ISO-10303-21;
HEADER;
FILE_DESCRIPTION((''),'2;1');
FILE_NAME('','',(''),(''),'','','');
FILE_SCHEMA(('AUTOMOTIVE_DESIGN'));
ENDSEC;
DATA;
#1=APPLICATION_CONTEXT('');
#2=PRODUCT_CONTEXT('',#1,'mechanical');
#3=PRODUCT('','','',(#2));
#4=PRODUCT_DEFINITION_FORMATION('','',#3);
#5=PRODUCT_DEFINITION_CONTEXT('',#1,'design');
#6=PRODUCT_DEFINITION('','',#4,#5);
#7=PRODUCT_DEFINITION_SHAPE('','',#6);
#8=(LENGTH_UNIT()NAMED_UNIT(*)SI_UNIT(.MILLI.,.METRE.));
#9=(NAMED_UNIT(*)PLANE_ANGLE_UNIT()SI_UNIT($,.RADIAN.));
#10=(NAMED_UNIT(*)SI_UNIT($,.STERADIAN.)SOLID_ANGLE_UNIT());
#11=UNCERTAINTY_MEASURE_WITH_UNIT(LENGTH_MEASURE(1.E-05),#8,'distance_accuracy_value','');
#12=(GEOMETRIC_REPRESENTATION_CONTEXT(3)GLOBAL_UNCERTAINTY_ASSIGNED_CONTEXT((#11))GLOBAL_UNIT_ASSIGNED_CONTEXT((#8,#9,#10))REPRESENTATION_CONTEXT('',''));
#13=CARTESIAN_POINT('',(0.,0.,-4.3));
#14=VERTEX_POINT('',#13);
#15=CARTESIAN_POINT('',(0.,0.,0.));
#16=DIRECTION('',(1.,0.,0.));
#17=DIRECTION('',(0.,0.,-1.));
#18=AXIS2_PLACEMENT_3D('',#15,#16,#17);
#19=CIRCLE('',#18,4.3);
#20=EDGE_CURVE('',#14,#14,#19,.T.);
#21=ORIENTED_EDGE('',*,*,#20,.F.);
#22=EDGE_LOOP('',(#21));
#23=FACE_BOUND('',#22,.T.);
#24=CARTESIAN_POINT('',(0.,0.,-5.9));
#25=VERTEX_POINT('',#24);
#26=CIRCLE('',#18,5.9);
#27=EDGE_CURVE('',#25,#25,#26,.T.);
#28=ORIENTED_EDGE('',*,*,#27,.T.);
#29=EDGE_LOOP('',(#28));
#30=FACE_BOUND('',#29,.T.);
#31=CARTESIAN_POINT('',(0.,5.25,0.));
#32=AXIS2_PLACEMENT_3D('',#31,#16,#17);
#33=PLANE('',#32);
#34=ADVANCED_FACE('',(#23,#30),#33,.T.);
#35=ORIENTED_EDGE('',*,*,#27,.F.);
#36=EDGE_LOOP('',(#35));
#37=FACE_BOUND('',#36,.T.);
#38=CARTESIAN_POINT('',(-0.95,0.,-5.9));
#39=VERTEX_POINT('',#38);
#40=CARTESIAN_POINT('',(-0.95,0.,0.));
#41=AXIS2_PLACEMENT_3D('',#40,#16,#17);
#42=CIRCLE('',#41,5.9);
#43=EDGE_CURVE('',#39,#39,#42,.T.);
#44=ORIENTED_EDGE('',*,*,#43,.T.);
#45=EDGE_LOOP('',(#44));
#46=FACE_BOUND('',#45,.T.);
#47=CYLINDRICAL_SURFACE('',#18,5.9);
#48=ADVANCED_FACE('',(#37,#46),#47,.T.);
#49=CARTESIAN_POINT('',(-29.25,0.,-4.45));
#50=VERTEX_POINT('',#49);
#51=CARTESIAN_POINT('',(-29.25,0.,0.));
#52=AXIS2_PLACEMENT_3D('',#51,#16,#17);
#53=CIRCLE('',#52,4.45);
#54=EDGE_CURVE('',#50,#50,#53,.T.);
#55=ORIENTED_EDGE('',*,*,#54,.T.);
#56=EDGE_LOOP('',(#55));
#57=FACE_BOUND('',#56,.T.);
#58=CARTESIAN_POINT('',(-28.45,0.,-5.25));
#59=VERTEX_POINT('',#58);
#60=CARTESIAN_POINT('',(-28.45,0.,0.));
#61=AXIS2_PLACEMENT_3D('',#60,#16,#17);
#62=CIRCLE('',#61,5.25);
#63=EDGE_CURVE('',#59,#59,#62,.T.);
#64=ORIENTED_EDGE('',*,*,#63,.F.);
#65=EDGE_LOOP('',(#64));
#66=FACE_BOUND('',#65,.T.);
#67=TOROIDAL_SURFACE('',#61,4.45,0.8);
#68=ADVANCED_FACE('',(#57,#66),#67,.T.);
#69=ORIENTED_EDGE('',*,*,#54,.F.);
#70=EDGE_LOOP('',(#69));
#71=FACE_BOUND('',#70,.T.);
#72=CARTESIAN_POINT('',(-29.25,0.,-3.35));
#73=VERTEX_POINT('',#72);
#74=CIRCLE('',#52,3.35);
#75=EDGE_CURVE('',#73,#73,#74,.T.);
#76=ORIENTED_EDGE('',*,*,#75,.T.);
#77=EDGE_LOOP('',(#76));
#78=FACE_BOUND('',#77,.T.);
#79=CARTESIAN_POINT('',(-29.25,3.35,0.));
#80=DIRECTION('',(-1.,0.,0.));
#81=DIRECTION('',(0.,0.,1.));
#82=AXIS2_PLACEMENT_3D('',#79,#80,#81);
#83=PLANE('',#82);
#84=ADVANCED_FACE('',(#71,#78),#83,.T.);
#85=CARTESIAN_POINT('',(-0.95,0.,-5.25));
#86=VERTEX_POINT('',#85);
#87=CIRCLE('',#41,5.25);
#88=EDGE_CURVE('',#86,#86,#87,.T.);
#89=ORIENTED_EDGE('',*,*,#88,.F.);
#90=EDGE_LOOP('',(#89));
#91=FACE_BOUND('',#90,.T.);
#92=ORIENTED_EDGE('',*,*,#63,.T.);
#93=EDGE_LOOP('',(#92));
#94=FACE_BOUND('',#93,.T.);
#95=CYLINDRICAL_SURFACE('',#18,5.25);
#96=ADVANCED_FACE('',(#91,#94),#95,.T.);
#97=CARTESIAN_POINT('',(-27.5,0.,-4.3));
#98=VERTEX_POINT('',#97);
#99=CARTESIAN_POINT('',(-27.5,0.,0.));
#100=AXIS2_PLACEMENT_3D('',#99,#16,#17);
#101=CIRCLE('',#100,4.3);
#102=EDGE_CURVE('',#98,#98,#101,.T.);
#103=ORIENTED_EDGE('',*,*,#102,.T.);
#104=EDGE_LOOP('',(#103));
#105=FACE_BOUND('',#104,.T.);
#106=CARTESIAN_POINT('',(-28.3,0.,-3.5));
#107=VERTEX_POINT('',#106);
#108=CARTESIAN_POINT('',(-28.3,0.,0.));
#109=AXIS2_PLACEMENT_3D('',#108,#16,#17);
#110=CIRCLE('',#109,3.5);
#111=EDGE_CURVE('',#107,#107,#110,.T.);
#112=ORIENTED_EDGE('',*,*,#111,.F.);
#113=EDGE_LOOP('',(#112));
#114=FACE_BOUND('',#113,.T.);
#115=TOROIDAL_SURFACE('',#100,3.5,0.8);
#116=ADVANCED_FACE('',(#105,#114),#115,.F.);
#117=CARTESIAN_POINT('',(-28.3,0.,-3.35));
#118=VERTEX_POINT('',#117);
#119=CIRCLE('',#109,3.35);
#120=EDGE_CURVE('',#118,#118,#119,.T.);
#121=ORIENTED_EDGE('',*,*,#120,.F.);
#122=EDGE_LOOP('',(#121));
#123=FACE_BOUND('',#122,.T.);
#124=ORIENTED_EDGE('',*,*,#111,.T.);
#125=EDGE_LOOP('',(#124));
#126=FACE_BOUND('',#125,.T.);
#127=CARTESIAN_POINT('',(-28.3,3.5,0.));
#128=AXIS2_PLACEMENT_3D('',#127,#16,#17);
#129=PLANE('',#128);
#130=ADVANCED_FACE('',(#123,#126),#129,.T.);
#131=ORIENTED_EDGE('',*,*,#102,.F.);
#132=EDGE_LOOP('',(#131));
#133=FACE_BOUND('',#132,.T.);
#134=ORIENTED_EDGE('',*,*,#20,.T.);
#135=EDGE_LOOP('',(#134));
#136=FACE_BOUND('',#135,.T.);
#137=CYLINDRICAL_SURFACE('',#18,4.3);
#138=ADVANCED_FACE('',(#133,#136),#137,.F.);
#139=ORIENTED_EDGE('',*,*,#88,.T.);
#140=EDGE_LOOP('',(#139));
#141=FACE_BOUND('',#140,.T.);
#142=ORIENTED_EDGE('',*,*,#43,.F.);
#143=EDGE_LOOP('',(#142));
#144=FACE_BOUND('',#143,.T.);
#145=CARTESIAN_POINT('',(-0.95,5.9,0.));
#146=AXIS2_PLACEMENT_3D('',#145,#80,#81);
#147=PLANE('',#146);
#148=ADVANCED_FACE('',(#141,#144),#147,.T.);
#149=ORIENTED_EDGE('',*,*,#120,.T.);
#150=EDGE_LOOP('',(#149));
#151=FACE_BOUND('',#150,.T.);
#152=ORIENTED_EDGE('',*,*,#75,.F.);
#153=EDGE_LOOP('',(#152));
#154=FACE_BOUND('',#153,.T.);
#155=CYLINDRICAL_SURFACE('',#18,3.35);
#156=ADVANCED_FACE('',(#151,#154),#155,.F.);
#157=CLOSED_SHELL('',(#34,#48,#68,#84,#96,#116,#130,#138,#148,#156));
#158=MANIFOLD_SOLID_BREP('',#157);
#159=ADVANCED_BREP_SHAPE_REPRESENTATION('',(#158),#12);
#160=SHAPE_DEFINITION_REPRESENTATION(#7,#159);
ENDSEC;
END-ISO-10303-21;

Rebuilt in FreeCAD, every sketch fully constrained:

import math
import FreeCAD as App
import Part
import Sketcher

V = App.Vector

doc = App.newDocument("Part")
params = doc.addObject("Spreadsheet::Sheet", "Params")
for row, (alias, value) in enumerate([
    ("sketch1_radius", "0.8 mm"),
    ("sketch1_width", "27.5 mm"),
    ("sketch1_height", "1.6 mm"),
    ("sketch1_height2", "1.1 mm"),
    ("sketch1_width2", "0.95 mm"),
    ("revolution_angle", "360 deg"),
], start=1):
    params.set(f"A{row}", alias)
    params.set(f"B{row}", "=" + value)
    params.setAlias(f"B{row}", alias)

body = doc.addObject("PartDesign::Body", "Body")

# Sketch on XY plane
sketch1 = doc.addObject("Sketcher::SketchObject", "Sketch")
body.addObject(sketch1)
sketch1.AttachmentSupport = (doc.XY_Plane, [""])
sketch1.MapMode = "FlatFace"
sketch1.addGeometry(Part.LineSegment(V(-27.5, 4.3, 0), V(0, 4.3, 0)), False)
sketch1.addGeometry(Part.LineSegment(V(0, 4.3, 0), V(0, 5.9, 0)), False)
sketch1.addGeometry(Part.LineSegment(V(0, 5.9, 0), V(-0.95, 5.9, 0)), False)
sketch1.addGeometry(Part.LineSegment(V(-0.95, 5.9, 0), V(-0.95, 5.25, 0)), False)
sketch1.addGeometry(Part.LineSegment(V(-0.95, 5.25, 0), V(-28.45, 5.25, 0)), False)
sketch1.addGeometry(Part.ArcOfCircle(Part.Circle(V(-28.45, 4.45, 0), V(0, 0, 1), 0.8), math.radians(90), math.radians(180)), False)
sketch1.addGeometry(Part.LineSegment(V(-29.25, 4.45, 0), V(-29.25, 3.35, 0)), False)
sketch1.addGeometry(Part.LineSegment(V(-29.25, 3.35, 0), V(-28.3, 3.35, 0)), False)
sketch1.addGeometry(Part.LineSegment(V(-28.3, 3.35, 0), V(-28.3, 3.5, 0)), False)
sketch1.addGeometry(Part.ArcOfCircle(Part.Circle(V(-27.5, 3.5, 0), V(0, 0, 1), 0.8), math.radians(90), math.radians(180)), False)
sketch1.addConstraint(Sketcher.Constraint("Coincident", 0, 2, 1, 1))
sketch1.addConstraint(Sketcher.Constraint("Coincident", 1, 2, 2, 1))
sketch1.addConstraint(Sketcher.Constraint("Coincident", 2, 2, 3, 1))
sketch1.addConstraint(Sketcher.Constraint("Coincident", 3, 2, 4, 1))
sketch1.addConstraint(Sketcher.Constraint("Tangent", 4, 2, 5, 1))
sketch1.addConstraint(Sketcher.Constraint("Tangent", 5, 2, 6, 1))
sketch1.addConstraint(Sketcher.Constraint("Coincident", 6, 2, 7, 1))
sketch1.addConstraint(Sketcher.Constraint("Coincident", 7, 2, 8, 1))
sketch1.addConstraint(Sketcher.Constraint("Tangent", 8, 2, 9, 2))
sketch1.addConstraint(Sketcher.Constraint("Tangent", 9, 1, 0, 1))
sketch1.addConstraint(Sketcher.Constraint("Horizontal", 0))
sketch1.addConstraint(Sketcher.Constraint("Vertical", 1))
sketch1.addConstraint(Sketcher.Constraint("Horizontal", 2))
sketch1.addConstraint(Sketcher.Constraint("Vertical", 3))
sketch1.addConstraint(Sketcher.Constraint("Horizontal", 4))
sketch1.addConstraint(Sketcher.Constraint("Vertical", 6))
sketch1.addConstraint(Sketcher.Constraint("Horizontal", 7))
sketch1.addConstraint(Sketcher.Constraint("Vertical", 8))
sketch1.addConstraint(Sketcher.Constraint("Equal", 5, 9))
sketch1.addConstraint(Sketcher.Constraint("PointOnObject", 0, 2, -2))
sketch1.addConstraint(Sketcher.Constraint("Equal", 0, 4))
sketch1.addConstraint(Sketcher.Constraint("Radius", 5, 0.8))
sketch1.addConstraint(Sketcher.Constraint("DistanceX", 0, 1, 0, 2, 27.5))
sketch1.addConstraint(Sketcher.Constraint("DistanceY", 1, 1, 1, 2, 1.6))
sketch1.addConstraint(Sketcher.Constraint("DistanceY", 6, 2, 6, 1, 1.1))
sketch1.addConstraint(Sketcher.Constraint("DistanceX", 2, 2, 2, 1, 0.95))
sketch1.addConstraint(Sketcher.Constraint("DistanceY", 3, 2, 3, 1, 0.65))
sketch1.addConstraint(Sketcher.Constraint("DistanceY", -1, 1, 9, 3, 3.5))
sketch1.setExpression("Constraints[21]", "Params.sketch1_radius")
sketch1.setExpression("Constraints[22]", "Params.sketch1_width")
sketch1.setExpression("Constraints[23]", "Params.sketch1_height")
sketch1.setExpression("Constraints[24]", "Params.sketch1_height2")
sketch1.setExpression("Constraints[25]", "Params.sketch1_width2")
revolution = doc.addObject("PartDesign::Revolution", "Revolution")
body.addObject(revolution)
revolution.Profile = sketch1
revolution.ReferenceAxis = (sketch1, ["H_Axis"])
revolution.setExpression("Angle", "Params.revolution_angle")

doc.recompute()
